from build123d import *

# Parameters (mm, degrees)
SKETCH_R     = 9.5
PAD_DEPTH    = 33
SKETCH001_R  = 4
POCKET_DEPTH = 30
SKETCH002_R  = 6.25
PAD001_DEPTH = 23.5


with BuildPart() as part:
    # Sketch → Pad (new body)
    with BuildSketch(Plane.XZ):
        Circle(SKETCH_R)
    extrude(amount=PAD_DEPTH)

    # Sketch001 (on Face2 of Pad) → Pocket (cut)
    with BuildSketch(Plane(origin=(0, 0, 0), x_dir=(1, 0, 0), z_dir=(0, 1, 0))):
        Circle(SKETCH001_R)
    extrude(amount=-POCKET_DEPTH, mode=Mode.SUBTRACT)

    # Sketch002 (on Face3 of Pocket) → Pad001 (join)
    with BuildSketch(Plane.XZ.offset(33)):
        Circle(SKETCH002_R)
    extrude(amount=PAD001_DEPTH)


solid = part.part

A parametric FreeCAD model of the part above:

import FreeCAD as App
import Part
import Sketcher
from FreeCAD import Vector

doc = App.newDocument("Part")
body = doc.addObject("PartDesign::Body", "Body")

# Sketch on XZ plane
sketch1 = body.newObject("Sketcher::SketchObject", "Sketch")
sketch1.AttachmentSupport = (doc.getObject("XZ_Plane"), [""])
sketch1.MapMode = "FlatFace"
sketch1.addGeometry(Part.Circle(Vector(0, 0, 0), Vector(0, 0, 1), 9.5), False)
sketch1.addConstraint(Sketcher.Constraint("Coincident", 0, 3, -1, 1))
sketch1.addConstraint(Sketcher.Constraint("Diameter", 0, 19.0))
pad1 = body.newObject("PartDesign::Pad", "Pad")
pad1.Profile = sketch1
pad1.Length = 33

# Sketch on XZ plane
sketch2 = body.newObject("Sketcher::SketchObject", "Sketch001")
sketch2.AttachmentSupport = (doc.getObject("XZ_Plane"), [""])
sketch2.MapMode = "FlatFace"
sketch2.addGeometry(Part.Circle(Vector(0, 0, 0), Vector(0, 0, 1), 4), False)
sketch2.addConstraint(Sketcher.Constraint("Coincident", 0, 3, -1, 1))
sketch2.addConstraint(Sketcher.Constraint("Diameter", 0, 8.0))
pocket1 = body.newObject("PartDesign::Pocket", "Pocket")
pocket1.Profile = sketch2
pocket1.Length = 30
pocket1.Reversed = True

# Sketch on XZ plane
sketch3 = body.newObject("Sketcher::SketchObject", "Sketch002")
sketch3.AttachmentSupport = (doc.getObject("XZ_Plane"), [""])
sketch3.MapMode = "FlatFace"
sketch3.AttachmentOffset = App.Placement(Vector(0, 0, 33), App.Rotation())
sketch3.addGeometry(Part.Circle(Vector(0, 0, 0), Vector(0, 0, 1), 6.25), False)
sketch3.addConstraint(Sketcher.Constraint("Coincident", 0, 3, -1, 1))
sketch3.addConstraint(Sketcher.Constraint("Diameter", 0, 12.5))
pad2 = body.newObject("PartDesign::Pad", "Pad001")
pad2.Profile = sketch3
pad2.Length = 23.5

doc.recompute()
